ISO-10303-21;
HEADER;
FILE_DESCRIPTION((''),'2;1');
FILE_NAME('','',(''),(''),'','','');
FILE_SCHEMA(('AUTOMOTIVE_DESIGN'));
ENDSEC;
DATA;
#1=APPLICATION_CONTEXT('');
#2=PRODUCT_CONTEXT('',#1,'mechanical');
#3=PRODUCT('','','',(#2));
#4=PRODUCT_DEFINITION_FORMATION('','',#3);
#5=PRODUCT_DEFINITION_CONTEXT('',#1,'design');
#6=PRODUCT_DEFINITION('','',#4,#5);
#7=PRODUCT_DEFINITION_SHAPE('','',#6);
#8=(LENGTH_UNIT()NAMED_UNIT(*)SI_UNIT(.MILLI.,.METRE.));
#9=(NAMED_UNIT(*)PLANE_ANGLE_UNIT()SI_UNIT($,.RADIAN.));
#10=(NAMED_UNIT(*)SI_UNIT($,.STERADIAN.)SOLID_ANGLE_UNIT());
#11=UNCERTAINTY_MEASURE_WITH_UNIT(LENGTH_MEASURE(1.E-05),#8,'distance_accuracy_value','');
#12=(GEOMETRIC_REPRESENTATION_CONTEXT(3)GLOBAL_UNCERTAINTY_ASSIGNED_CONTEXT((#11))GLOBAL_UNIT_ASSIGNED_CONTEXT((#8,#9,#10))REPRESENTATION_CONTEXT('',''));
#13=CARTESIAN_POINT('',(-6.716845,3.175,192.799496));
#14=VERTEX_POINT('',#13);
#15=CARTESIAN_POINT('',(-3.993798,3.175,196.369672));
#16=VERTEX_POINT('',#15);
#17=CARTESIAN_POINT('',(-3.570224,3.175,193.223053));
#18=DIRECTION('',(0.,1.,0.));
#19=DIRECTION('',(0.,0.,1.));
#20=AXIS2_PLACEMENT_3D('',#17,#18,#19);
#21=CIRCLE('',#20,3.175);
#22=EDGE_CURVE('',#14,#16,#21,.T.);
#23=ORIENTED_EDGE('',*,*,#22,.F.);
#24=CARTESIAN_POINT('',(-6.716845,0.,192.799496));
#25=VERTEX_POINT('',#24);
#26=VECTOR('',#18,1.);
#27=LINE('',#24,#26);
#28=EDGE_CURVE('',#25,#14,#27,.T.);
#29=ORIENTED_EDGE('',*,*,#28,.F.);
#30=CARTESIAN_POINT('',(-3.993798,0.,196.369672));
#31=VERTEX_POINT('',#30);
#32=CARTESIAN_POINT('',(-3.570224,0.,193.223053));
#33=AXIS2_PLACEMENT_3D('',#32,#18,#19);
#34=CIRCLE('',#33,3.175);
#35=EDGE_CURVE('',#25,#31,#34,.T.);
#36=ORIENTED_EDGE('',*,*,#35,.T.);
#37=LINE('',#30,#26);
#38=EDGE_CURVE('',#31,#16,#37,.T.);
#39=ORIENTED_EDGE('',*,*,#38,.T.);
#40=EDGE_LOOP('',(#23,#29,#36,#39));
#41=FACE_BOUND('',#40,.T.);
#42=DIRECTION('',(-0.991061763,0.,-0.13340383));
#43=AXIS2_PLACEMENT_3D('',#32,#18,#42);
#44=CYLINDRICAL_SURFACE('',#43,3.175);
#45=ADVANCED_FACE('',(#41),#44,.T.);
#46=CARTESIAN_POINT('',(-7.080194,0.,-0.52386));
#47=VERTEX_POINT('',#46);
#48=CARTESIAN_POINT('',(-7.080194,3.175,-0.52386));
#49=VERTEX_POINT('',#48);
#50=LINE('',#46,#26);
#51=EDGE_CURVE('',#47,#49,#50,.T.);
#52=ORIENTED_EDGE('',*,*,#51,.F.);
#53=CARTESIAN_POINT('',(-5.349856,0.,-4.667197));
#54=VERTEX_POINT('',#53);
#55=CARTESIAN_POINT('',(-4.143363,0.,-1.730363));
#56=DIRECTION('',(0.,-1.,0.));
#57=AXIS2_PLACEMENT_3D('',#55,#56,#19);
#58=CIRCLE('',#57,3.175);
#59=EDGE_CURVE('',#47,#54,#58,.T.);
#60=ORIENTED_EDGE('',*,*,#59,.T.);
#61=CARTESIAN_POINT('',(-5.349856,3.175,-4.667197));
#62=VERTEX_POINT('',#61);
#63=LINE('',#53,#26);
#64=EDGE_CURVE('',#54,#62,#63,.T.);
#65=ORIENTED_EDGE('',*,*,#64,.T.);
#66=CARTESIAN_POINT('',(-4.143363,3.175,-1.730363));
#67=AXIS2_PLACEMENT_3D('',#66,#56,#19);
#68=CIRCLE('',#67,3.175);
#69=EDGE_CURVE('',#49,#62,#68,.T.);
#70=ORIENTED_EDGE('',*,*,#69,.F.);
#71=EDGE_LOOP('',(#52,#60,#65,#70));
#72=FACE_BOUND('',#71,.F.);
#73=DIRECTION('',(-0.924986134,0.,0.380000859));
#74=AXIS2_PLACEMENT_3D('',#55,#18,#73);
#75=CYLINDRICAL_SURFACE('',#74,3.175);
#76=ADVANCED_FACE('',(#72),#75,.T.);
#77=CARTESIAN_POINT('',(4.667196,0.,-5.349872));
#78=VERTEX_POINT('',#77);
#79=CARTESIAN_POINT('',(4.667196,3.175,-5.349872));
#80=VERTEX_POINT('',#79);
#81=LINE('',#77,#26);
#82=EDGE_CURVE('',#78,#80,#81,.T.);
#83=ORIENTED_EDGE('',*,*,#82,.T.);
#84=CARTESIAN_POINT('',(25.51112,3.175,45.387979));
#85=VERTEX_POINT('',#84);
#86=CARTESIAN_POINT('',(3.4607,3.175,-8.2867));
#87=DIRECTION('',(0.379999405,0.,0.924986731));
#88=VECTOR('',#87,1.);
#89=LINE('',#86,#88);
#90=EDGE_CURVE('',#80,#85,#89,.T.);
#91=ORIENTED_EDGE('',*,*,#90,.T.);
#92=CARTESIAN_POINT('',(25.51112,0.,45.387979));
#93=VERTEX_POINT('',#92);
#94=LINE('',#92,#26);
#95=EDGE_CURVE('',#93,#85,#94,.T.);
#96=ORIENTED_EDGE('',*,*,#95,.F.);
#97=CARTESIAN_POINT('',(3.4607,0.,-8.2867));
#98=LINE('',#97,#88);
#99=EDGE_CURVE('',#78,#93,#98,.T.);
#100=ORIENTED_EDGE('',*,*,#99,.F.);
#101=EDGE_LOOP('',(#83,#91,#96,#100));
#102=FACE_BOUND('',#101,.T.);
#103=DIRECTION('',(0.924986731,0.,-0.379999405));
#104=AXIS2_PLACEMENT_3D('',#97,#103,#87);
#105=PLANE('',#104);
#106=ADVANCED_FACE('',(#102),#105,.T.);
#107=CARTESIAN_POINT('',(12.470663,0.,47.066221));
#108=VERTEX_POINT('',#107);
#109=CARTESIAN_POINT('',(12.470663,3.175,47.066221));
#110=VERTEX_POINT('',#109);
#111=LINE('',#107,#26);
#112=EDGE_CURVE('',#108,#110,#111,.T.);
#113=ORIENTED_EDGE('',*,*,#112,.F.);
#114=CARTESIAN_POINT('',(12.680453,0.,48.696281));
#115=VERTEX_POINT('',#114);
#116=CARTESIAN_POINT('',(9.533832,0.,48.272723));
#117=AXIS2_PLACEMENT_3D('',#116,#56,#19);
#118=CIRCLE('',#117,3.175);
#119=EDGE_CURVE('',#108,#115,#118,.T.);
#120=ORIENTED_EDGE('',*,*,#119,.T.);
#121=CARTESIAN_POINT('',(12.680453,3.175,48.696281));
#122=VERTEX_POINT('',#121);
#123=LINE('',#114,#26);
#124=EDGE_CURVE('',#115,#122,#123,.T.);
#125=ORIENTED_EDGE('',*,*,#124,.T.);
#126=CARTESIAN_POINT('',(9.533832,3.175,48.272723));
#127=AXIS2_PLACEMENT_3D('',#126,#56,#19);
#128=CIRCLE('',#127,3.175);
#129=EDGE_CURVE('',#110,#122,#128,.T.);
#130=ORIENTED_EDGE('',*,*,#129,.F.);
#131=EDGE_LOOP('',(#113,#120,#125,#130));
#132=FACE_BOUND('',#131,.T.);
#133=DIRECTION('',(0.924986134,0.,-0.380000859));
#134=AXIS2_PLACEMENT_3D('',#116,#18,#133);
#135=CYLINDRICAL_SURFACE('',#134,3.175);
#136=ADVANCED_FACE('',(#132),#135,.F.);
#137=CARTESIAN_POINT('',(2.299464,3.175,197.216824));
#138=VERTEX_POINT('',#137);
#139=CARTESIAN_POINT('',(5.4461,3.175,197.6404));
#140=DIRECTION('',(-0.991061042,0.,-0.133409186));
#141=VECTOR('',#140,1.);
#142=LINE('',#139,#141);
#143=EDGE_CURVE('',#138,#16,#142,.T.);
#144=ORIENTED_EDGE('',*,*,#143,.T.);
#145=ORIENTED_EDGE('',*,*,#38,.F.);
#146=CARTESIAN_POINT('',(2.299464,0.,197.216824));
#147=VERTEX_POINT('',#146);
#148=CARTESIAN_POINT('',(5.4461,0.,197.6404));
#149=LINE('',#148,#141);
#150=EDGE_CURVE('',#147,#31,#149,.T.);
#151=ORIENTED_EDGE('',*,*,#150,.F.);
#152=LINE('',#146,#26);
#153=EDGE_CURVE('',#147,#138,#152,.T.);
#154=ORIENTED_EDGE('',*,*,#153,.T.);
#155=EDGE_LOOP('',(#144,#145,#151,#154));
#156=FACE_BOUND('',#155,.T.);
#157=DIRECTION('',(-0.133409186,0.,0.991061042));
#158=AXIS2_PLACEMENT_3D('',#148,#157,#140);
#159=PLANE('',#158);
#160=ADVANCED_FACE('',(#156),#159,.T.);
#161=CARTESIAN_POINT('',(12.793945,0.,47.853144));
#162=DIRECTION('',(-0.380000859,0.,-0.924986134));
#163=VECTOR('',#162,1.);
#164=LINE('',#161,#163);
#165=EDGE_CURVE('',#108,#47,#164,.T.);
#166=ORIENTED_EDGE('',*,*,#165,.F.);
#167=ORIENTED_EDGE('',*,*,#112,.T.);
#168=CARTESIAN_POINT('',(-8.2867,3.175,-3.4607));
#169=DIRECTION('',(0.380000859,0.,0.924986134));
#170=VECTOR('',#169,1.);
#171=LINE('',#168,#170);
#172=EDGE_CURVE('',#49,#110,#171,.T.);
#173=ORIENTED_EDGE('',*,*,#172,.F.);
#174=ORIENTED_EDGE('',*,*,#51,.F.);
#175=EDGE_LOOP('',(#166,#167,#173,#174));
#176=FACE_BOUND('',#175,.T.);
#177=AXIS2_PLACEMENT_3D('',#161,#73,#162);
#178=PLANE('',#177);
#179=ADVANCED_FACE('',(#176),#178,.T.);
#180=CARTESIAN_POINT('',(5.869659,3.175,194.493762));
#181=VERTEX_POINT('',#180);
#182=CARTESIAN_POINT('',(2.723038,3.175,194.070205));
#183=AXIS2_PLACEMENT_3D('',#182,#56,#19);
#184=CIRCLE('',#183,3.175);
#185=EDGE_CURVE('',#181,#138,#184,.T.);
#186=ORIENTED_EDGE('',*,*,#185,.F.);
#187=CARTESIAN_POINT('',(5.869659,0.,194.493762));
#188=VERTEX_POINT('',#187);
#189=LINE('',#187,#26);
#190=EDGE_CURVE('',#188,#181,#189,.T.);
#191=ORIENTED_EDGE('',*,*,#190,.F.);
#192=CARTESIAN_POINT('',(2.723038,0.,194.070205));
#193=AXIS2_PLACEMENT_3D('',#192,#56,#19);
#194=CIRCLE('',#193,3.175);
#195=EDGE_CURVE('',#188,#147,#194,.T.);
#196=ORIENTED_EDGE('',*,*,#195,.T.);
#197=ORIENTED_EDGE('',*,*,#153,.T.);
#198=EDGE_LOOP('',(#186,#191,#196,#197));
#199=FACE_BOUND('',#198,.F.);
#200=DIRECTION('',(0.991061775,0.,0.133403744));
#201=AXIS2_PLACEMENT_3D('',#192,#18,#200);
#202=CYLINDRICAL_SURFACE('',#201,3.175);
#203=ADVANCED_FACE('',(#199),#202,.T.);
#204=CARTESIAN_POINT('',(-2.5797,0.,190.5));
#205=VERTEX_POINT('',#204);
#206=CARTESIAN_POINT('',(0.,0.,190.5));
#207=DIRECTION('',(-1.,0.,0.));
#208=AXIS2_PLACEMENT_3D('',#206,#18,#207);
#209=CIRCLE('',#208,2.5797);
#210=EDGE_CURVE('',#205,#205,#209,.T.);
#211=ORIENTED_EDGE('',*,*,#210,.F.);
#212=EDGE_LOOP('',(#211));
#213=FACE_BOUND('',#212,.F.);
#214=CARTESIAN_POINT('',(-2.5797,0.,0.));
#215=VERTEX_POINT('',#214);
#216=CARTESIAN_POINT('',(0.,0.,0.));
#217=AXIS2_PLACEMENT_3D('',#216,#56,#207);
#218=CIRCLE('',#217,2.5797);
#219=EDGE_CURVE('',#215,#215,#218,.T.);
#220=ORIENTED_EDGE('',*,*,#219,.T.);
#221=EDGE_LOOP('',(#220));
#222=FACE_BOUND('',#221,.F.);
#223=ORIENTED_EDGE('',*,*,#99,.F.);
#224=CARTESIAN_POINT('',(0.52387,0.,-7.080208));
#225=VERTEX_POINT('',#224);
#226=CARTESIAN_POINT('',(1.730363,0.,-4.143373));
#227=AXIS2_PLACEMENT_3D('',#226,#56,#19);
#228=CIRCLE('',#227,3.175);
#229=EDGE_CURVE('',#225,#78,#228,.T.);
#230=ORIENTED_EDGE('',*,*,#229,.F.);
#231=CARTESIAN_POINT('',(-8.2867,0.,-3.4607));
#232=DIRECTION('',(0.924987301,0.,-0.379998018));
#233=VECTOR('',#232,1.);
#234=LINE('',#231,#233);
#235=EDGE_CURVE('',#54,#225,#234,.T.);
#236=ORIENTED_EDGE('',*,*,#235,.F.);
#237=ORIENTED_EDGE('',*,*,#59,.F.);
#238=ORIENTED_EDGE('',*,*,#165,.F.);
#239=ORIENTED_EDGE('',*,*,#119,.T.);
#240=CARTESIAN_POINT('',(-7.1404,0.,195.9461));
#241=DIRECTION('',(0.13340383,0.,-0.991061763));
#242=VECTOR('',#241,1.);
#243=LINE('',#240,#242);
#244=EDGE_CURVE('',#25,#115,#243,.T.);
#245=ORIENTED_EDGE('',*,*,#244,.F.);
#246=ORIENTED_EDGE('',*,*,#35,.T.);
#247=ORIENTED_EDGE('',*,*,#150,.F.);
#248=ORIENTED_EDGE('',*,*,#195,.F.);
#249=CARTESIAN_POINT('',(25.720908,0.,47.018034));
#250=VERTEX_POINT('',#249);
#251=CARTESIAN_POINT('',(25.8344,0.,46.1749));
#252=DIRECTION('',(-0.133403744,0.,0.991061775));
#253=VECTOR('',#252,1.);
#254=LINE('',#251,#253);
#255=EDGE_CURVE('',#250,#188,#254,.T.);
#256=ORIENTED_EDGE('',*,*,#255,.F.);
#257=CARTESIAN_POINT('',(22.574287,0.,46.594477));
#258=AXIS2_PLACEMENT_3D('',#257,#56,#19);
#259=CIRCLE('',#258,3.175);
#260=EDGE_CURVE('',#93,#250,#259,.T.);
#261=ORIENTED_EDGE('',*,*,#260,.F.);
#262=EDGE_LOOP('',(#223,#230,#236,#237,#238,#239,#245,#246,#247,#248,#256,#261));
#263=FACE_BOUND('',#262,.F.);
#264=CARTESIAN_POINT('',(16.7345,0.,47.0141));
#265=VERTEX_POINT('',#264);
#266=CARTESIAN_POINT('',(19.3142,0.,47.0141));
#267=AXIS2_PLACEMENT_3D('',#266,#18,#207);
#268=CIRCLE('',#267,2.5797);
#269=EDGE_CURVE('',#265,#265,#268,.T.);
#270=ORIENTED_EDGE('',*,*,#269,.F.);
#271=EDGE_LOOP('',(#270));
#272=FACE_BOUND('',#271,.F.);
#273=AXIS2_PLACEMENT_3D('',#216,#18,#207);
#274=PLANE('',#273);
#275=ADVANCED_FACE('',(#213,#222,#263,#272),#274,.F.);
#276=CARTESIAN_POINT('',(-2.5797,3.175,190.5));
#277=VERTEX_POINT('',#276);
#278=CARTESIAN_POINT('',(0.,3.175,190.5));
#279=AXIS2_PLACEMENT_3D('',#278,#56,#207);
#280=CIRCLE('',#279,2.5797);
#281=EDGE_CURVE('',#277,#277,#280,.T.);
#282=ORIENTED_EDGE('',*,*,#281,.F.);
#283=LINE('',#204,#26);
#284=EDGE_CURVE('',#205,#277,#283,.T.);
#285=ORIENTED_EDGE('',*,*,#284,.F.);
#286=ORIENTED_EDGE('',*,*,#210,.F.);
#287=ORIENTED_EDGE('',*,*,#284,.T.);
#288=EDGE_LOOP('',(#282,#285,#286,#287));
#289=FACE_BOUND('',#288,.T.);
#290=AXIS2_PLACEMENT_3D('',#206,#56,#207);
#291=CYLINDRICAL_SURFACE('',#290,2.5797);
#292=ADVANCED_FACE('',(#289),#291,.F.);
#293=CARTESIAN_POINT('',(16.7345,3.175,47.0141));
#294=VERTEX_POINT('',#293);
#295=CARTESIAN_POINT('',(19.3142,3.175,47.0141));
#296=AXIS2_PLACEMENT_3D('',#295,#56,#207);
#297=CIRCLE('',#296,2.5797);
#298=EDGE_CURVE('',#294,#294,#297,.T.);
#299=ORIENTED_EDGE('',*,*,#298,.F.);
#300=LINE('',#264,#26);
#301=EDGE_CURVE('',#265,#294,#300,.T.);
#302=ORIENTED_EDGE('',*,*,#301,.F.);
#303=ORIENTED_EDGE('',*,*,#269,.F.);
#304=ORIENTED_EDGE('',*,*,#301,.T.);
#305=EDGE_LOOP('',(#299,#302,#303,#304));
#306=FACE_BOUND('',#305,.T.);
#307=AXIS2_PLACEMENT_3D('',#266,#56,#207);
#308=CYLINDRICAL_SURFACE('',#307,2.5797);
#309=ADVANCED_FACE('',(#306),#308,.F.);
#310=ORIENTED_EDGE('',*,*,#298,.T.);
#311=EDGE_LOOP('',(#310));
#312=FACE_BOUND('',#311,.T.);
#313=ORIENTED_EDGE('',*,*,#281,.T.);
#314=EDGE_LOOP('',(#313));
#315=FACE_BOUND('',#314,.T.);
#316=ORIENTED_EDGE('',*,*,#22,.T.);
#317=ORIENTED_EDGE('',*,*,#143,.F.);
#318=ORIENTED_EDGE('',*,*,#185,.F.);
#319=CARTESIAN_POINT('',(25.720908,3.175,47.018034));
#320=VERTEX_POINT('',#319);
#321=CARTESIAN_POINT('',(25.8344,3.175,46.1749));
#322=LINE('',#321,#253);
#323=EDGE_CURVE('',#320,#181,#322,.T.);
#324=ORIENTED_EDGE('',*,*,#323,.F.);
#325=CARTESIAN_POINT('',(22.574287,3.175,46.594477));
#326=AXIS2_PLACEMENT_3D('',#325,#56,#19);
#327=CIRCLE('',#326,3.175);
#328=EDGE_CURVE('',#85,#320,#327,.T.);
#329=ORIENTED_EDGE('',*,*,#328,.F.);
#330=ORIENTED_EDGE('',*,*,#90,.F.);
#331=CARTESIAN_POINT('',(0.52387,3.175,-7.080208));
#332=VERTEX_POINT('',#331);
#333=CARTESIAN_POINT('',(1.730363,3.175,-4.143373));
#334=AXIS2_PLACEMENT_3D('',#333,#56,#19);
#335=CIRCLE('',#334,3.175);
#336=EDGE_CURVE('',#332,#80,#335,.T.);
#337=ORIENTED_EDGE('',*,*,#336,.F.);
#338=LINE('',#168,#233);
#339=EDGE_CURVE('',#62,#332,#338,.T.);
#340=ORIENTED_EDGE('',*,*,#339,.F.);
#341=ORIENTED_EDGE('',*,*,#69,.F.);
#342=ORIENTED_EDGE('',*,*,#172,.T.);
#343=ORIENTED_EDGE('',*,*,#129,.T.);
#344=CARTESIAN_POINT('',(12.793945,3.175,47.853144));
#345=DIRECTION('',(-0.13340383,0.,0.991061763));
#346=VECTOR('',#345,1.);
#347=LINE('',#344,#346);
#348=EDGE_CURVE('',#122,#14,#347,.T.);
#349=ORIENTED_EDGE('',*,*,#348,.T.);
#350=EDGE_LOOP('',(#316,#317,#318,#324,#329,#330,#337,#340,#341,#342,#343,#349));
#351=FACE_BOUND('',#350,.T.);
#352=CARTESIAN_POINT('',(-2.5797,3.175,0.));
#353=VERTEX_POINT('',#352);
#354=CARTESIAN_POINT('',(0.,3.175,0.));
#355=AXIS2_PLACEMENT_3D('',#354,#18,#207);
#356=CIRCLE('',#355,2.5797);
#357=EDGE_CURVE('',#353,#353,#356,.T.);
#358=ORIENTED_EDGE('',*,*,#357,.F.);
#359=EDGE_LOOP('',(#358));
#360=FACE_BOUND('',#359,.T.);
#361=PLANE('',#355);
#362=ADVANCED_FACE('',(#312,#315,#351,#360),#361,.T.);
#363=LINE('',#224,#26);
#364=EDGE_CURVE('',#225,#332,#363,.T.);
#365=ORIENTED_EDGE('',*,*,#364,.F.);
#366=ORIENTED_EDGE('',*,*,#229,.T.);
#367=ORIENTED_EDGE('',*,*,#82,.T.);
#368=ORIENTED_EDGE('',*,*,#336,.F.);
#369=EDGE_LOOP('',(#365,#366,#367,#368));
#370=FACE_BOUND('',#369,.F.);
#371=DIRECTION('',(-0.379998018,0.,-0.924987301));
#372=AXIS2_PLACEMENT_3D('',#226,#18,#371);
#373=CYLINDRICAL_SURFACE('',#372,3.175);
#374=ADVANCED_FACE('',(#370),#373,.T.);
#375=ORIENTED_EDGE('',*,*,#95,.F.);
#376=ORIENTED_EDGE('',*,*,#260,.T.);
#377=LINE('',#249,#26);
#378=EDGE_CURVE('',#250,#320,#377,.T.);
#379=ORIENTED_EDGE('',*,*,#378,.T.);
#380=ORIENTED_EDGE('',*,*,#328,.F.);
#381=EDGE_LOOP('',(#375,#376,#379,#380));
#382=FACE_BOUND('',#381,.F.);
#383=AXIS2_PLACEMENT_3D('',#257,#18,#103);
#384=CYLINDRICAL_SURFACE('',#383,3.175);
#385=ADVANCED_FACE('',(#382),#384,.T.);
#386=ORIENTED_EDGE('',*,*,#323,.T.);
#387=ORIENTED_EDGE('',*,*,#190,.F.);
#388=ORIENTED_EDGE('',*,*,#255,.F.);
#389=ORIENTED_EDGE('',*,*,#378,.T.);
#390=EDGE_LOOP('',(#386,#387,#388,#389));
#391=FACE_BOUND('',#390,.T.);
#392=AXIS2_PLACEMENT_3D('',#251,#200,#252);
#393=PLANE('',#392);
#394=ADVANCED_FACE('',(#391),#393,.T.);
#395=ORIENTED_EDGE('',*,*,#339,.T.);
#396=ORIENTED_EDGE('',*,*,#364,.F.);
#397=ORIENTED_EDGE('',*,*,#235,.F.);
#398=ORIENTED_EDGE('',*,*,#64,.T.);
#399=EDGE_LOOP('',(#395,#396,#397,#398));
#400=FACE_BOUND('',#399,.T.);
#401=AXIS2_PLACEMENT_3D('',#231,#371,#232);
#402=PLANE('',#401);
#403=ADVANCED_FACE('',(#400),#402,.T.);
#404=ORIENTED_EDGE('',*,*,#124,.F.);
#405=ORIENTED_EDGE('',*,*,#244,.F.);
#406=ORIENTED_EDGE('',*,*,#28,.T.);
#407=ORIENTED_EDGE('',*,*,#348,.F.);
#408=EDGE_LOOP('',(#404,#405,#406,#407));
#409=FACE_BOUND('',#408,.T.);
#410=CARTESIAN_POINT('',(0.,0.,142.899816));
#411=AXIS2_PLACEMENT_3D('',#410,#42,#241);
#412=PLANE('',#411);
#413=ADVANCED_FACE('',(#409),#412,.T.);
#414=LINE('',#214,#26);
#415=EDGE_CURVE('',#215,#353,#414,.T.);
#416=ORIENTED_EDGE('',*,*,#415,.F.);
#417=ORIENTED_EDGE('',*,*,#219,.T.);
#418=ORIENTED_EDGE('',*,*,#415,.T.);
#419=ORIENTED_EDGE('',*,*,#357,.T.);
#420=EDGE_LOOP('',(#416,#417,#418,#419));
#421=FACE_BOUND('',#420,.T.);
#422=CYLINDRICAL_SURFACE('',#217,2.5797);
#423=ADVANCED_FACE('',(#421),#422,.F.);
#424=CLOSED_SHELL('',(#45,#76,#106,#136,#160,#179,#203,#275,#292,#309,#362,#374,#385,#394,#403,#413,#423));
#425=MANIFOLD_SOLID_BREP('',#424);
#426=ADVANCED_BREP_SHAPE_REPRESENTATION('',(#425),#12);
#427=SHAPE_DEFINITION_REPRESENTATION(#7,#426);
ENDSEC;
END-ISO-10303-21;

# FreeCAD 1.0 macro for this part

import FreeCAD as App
import Part
import Sketcher
Q = App.Units.Quantity


def edges_at(feature, points):
    """Names of the edges that pass closest to the given points."""
    edges = feature.Shape.Edges
    near = lambda p: min(range(len(edges)), key=lambda i: edges[i].distToShape(Part.Vertex(*p))[0])
    return sorted({f"Edge{near(p) + 1}" for p in points})


def add_polygon(sketch, points):
    """Adds a closed chain of lines whose ends are joined by coincident constraints."""
    first, n = sketch.GeometryCount, len(points)
    for a, b in zip(points, points[1:] + points[:1]):
        sketch.addGeometry(Part.LineSegment(App.Vector(*a, 0), App.Vector(*b, 0)), False)
    for i in range(n):
        sketch.addConstraint(Sketcher.Constraint("Coincident", first + i, 2, first + (i + 1) % n, 1))

doc = App.newDocument("Part")
body = doc.addObject("PartDesign::Body", "Body")

# Sketch on XZ plane
sketch1 = body.newObject("Sketcher::SketchObject", "Sketch")
sketch1.AttachmentSupport = (doc.getObject("XZ_Plane"), [""])
sketch1.MapMode = "FlatFace"
add_polygon(sketch1, [(12.8, 47.9), (-7.1, 195.9), (5.4, 197.6), (25.8, 46.2), (3.5, -8.3), (-8.3, -3.5)])  # lines 0-5
sketch1.addGeometry(Part.Circle(App.Vector(0, 0, 0), App.Vector(0, 0, 1), 2.6), False)  # 6
sketch1.addGeometry(Part.Circle(App.Vector(19.3, 47, 0), App.Vector(0, 0, 1), 2.6), False)  # 7
sketch1.addGeometry(Part.Circle(App.Vector(0, 190.5, 0), App.Vector(0, 0, 1), 2.6), False)  # 8
sketch1.addConstraint([
    Sketcher.Constraint("Coincident", 6, 3, -1, 1),
    Sketcher.Constraint("Equal", 6, 7),
    Sketcher.Constraint("Equal", 7, 8),
    Sketcher.Constraint("PointOnObject", 8, 3, -2),
    Sketcher.Constraint("Perpendicular", 0, 1),
    Sketcher.Constraint("Perpendicular", 1, 2),
    Sketcher.Constraint("Perpendicular", 3, 4),
    Sketcher.Constraint("Perpendicular", 4, 5),
    Sketcher.Constraint("Equal", 1, 4),
    Sketcher.Constraint("Diameter", 6, Q("0.203126 in")),
    Sketcher.Constraint("Distance", 1, Q("0.5 in")),
    Sketcher.Constraint("DistanceY", -1, 1, 8, 3, Q("7.5 in")),
    Sketcher.Constraint("DistanceY", 3, 2, 4, 2, Q("0.19 in")),
    Sketcher.Constraint("Distance", 2, Q("6.017 in")),
    Sketcher.Constraint("DistanceX", 1, 2, 7, 3, Q("0.546 in")),
    Sketcher.Constraint("DistanceX", -1, 1, 7, 3, Q("0.7604 in")),
    Sketcher.Constraint("DistanceX", -1, 1, 2, 2, Q("1.0171 in")),
    Sketcher.Constraint("DistanceY", -1, 1, 2, 2, Q("1.8179 in")),
    Sketcher.Constraint("DistanceY", 3, 2, 7, 3, Q("2.1772 in")),
    Sketcher.Constraint("Distance", 3, Q("58.8783 mm")),
])
pad1 = body.newObject("PartDesign::Pad", "Pad")
pad1.Profile = sketch1
pad1.Length = Q("0.125 in")
pad1.Reversed = True
doc.recompute()

fillet = body.newObject("PartDesign::Fillet", "Fillet")
fillet.Base = (pad1, edges_at(pad1, [
    (-7.14, 1.587, 195.946),
    (5.446, 1.587, 197.64),
    (25.834, 1.587, 46.175),
    (12.794, 1.587, 47.853),
    (3.461, 1.587, -8.287),
    (-8.287, 1.587, -3.461),
]))
fillet.Radius = Q("0.125 in")

doc.recompute()
